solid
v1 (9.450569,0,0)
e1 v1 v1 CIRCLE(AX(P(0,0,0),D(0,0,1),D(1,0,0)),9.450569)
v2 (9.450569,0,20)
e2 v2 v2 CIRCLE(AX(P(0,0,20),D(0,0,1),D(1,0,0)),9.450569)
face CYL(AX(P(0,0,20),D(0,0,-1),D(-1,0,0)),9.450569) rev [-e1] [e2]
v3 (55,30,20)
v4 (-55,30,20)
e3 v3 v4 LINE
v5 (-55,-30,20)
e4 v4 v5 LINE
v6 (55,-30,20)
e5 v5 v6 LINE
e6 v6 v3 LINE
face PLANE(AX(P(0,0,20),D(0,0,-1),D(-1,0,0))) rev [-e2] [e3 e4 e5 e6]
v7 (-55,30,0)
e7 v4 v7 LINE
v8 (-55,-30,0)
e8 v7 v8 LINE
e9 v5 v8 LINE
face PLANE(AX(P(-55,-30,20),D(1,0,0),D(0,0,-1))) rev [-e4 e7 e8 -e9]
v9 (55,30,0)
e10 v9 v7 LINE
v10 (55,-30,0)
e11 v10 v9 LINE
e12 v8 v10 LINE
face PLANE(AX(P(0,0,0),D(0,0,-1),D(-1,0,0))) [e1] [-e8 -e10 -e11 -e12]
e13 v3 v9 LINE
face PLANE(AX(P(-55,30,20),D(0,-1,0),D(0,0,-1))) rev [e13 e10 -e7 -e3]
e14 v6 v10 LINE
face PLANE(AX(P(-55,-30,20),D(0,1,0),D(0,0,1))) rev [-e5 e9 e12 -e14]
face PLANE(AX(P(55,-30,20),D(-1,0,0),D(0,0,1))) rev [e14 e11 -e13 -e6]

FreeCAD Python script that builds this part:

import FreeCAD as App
import Part
import Sketcher

V = App.Vector
Q = App.Units.Quantity


def add_polygon(sketch, points):
    """Adds a closed chain of lines whose ends are joined by coincident constraints."""
    first, n = sketch.GeometryCount, len(points)
    for a, b in zip(points, points[1:] + points[:1]):
        sketch.addGeometry(Part.LineSegment(App.Vector(*a, 0), App.Vector(*b, 0)), False)
    for i in range(n):
        sketch.addConstraint(Sketcher.Constraint("Coincident", first + i, 2, first + (i + 1) % n, 1))

doc = App.newDocument("Part")
params = doc.addObject("Spreadsheet::Sheet", "Params")
for row, (alias, value) in enumerate([
    ("sketch1_width", "110 mm"),
    ("sketch1_height", "60 mm"),
    ("pad1_length", "20 mm"),
], start=1):
    params.set(f"A{row}", alias)
    params.set(f"B{row}", "=" + value)
    params.setAlias(f"B{row}", alias)

body = doc.addObject("PartDesign::Body", "Body")

sketch1 = body.newObject("Sketcher::SketchObject", "Sketch")
sketch1.AttachmentSupport = (doc.getObject("XY_Plane"), [""])
sketch1.MapMode = "FlatFace"
add_polygon(sketch1, [(-55, 30), (-55, -30), (55, -30), (55, 30)])
sketch1.addGeometry(Part.Circle(V(0, 0, 0), V(0, 0, 1), 9), False)
sketch1.addConstraint(Sketcher.Constraint("Vertical", 0))
sketch1.addConstraint(Sketcher.Constraint("Horizontal", 1))
sketch1.addConstraint(Sketcher.Constraint("Vertical", 2))
sketch1.addConstraint(Sketcher.Constraint("Horizontal", 3))
sketch1.addConstraint(Sketcher.Constraint("Coincident", 4, 3, -1, 1))
sketch1.addConstraint(Sketcher.Constraint("Symmetric", 0, 2, 2, 2, -1, 1))
sketch1.addConstraint(Sketcher.Constraint("DistanceX", 1, 1, 1, 2, Q("110 mm")))
sketch1.addConstraint(Sketcher.Constraint("DistanceY", 0, 2, 0, 1, Q("60 mm")))
sketch1.addConstraint(Sketcher.Constraint("Diameter", 4, Q("18.901137 mm")))
sketch1.setExpression("Constraints[10]", "Params.sketch1_width")
sketch1.setExpression("Constraints[11]", "Params.sketch1_height")
pad1 = body.newObject("PartDesign::Pad", "Pad")
pad1.Profile = sketch1
pad1.setExpression("Length", "Params.pad1_length")

doc.recompute()
